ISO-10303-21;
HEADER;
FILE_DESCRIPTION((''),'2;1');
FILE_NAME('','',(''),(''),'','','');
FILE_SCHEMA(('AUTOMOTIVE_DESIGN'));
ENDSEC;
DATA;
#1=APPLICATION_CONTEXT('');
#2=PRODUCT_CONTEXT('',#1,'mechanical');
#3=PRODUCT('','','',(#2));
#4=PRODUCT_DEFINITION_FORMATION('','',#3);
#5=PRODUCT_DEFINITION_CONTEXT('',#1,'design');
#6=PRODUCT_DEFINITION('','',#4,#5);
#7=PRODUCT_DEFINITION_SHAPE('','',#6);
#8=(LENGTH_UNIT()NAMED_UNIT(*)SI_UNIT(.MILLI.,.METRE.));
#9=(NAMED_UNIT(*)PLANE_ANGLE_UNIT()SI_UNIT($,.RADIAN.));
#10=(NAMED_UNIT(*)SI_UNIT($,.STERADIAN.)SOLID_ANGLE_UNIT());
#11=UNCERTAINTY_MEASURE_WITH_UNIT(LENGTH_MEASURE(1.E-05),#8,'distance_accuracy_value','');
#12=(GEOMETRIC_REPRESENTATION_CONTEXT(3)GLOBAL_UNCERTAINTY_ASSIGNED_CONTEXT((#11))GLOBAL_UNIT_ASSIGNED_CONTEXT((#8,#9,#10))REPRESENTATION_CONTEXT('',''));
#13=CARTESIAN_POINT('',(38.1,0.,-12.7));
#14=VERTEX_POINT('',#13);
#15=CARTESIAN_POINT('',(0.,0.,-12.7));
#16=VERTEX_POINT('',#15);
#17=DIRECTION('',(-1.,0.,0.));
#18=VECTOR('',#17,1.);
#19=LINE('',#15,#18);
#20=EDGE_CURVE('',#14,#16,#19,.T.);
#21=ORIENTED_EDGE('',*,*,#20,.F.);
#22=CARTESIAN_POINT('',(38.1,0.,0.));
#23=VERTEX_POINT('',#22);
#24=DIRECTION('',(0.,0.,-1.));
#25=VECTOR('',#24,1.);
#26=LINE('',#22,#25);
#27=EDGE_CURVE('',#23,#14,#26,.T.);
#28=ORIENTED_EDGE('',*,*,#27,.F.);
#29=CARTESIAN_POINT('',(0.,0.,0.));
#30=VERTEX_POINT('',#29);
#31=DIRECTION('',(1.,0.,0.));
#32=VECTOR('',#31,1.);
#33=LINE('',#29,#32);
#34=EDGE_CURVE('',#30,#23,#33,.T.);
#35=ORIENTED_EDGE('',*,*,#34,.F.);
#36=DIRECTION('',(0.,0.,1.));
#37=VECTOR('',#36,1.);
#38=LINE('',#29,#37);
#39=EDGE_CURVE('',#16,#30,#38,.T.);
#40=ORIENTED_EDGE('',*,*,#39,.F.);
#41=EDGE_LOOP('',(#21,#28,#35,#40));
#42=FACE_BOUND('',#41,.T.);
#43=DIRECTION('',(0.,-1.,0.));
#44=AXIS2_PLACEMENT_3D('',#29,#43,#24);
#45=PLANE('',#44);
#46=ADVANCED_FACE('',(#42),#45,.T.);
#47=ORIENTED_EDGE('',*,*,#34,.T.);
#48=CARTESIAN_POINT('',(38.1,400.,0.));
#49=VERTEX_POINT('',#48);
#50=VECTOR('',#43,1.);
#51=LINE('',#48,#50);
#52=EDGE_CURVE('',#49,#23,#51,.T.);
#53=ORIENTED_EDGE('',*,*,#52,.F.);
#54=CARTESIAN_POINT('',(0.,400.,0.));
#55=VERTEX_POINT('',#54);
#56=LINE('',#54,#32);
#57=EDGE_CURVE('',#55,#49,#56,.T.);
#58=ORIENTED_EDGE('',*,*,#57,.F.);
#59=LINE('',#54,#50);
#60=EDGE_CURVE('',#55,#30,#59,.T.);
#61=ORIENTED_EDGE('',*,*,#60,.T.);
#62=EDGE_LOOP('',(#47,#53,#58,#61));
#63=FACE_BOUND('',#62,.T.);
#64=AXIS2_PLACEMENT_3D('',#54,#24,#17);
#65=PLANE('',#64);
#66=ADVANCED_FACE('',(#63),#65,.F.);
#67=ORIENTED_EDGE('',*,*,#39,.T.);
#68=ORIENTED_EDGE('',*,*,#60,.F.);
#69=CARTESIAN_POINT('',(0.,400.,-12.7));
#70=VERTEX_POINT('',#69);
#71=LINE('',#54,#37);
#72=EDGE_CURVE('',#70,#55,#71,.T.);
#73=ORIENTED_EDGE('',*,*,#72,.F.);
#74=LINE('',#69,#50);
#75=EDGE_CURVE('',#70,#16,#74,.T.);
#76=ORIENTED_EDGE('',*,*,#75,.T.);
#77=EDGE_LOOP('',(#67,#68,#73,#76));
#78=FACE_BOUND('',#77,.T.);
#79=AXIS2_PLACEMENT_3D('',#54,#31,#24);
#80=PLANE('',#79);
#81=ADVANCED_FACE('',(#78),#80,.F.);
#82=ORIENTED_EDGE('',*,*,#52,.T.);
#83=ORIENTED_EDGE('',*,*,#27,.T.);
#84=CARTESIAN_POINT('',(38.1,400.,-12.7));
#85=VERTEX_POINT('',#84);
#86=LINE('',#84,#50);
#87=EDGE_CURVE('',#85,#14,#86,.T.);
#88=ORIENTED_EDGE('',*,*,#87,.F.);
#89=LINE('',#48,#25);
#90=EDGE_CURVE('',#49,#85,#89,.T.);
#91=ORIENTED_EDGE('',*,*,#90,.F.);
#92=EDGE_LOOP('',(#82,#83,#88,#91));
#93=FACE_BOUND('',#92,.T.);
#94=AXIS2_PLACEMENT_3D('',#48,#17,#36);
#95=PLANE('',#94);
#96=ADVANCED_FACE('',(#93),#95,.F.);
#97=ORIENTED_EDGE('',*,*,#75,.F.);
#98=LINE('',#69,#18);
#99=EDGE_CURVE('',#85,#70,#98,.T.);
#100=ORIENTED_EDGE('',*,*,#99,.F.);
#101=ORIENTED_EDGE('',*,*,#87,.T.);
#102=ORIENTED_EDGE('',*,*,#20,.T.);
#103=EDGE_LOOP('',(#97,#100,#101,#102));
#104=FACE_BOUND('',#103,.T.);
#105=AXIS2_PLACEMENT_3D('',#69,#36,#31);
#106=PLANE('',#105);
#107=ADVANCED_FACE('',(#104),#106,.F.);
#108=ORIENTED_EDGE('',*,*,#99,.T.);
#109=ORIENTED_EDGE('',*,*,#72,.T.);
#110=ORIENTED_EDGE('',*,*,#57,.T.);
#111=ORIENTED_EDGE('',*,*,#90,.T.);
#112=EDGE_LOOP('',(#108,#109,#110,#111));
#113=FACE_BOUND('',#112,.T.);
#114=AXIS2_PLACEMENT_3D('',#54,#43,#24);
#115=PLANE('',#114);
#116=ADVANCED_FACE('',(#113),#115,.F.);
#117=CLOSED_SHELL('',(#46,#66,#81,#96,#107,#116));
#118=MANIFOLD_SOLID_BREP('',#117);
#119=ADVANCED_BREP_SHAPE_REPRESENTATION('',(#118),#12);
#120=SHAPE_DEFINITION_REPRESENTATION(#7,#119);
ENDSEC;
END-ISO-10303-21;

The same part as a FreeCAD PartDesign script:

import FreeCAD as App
import Part
import Sketcher

V = App.Vector
Q = App.Units.Quantity


def add_polygon(sketch, points):
    """Adds a closed chain of lines whose ends are joined by coincident constraints."""
    first, n = sketch.GeometryCount, len(points)
    for a, b in zip(points, points[1:] + points[:1]):
        sketch.addGeometry(Part.LineSegment(App.Vector(*a, 0), App.Vector(*b, 0)), False)
    for i in range(n):
        sketch.addConstraint(Sketcher.Constraint("Coincident", first + i, 2, first + (i + 1) % n, 1))

doc = App.newDocument("Part")
body = doc.addObject("PartDesign::Body", "Body")

# Sketch on XZ plane
sketch1 = doc.addObject("Sketcher::SketchObject", "Sketch")
body.addObject(sketch1)
sketch1.AttachmentSupport = (doc.XZ_Plane, [""])
sketch1.MapMode = "FlatFace"
add_polygon(sketch1, [(0, -12.7), (0, 0), (38.1, 0), (38.1, -12.7)])  # lines 0-3
sketch1.addConstraint(Sketcher.Constraint("Vertical", 0))
sketch1.addConstraint(Sketcher.Constraint("Horizontal", 1))
sketch1.addConstraint(Sketcher.Constraint("Vertical", 2))
sketch1.addConstraint(Sketcher.Constraint("Horizontal", 3))
sketch1.addConstraint(Sketcher.Constraint("Coincident", 0, 2, -1, 1))
sketch1.addConstraint(Sketcher.Constraint("DistanceX", 1, 1, 1, 2, Q("1.5 in")))
sketch1.addConstraint(Sketcher.Constraint("DistanceY", 0, 1, 0, 2, Q("0.5 in")))
pad1 = doc.addObject("PartDesign::Pad", "Pad")
body.addObject(pad1)
pad1.Profile = sketch1
pad1.Length = 400
pad1.Reversed = True

doc.recompute()
